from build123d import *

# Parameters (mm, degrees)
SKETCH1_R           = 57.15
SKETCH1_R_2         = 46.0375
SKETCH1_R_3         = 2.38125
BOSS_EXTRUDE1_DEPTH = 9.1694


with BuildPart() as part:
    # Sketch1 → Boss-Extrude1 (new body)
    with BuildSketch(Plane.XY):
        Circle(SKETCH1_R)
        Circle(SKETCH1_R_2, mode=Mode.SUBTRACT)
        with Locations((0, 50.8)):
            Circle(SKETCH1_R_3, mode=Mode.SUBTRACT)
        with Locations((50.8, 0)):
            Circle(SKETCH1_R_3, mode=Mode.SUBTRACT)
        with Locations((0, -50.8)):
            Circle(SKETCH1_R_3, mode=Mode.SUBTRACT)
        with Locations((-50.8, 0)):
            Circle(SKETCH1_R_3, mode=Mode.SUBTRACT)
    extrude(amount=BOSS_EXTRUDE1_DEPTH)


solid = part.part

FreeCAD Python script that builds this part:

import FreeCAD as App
import Part
import Sketcher

V = App.Vector
Q = App.Units.Quantity

doc = App.newDocument("Part")
body = doc.addObject("PartDesign::Body", "Body")

# Sketch on XY plane
sketch1 = body.newObject("Sketcher::SketchObject", "Sketch")
sketch1.AttachmentSupport = (doc.getObject("XY_Plane"), [""])
sketch1.MapMode = "FlatFace"
sketch1.addGeometry([
    Part.Circle(V(0, 0, 0), V(0, 0, 1), 57.1),  # 0
    Part.Circle(V(0, -50.8, 0), V(0, 0, 1), 2.4),  # 1
    Part.Circle(V(-50.8, 0, 0), V(0, 0, 1), 2.4),  # 2
    Part.Circle(V(0, 0, 0), V(0, 0, 1), 46),  # 3
    Part.Circle(V(50.8, 0, 0), V(0, 0, 1), 2.4),  # 4
    Part.Circle(V(0, 50.8, 0), V(0, 0, 1), 2.4),  # 5
], False)
sketch1.addConstraint([
    Sketcher.Constraint("Coincident", 0, 3, -1, 1),
    Sketcher.Constraint("Coincident", 3, 3, -1, 1),
    Sketcher.Constraint("Equal", 1, 2),
    Sketcher.Constraint("Equal", 2, 4),
    Sketcher.Constraint("Equal", 4, 5),
    Sketcher.Constraint("Symmetric", 2, 3, 4, 3, -1, 1),
    Sketcher.Constraint("Symmetric", 1, 3, 5, 3, -1, 1),
    Sketcher.Constraint("PointOnObject", 1, 3, -2),
    Sketcher.Constraint("PointOnObject", 2, 3, -1),
    Sketcher.Constraint("Diameter", 0, Q("4.5 in")),
    Sketcher.Constraint("Diameter", 1, Q("0.1875 in")),
    Sketcher.Constraint("Diameter", 3, Q("3.625 in")),
    Sketcher.Constraint("DistanceY", 1, 3, -1, 1, Q("2 in")),
    Sketcher.Constraint("DistanceX", 2, 3, -1, 1, Q("2 in")),
])
pad1 = body.newObject("PartDesign::Pad", "Pad")
pad1.Profile = sketch1
pad1.Length = Q("0.361 in")

doc.recompute()
